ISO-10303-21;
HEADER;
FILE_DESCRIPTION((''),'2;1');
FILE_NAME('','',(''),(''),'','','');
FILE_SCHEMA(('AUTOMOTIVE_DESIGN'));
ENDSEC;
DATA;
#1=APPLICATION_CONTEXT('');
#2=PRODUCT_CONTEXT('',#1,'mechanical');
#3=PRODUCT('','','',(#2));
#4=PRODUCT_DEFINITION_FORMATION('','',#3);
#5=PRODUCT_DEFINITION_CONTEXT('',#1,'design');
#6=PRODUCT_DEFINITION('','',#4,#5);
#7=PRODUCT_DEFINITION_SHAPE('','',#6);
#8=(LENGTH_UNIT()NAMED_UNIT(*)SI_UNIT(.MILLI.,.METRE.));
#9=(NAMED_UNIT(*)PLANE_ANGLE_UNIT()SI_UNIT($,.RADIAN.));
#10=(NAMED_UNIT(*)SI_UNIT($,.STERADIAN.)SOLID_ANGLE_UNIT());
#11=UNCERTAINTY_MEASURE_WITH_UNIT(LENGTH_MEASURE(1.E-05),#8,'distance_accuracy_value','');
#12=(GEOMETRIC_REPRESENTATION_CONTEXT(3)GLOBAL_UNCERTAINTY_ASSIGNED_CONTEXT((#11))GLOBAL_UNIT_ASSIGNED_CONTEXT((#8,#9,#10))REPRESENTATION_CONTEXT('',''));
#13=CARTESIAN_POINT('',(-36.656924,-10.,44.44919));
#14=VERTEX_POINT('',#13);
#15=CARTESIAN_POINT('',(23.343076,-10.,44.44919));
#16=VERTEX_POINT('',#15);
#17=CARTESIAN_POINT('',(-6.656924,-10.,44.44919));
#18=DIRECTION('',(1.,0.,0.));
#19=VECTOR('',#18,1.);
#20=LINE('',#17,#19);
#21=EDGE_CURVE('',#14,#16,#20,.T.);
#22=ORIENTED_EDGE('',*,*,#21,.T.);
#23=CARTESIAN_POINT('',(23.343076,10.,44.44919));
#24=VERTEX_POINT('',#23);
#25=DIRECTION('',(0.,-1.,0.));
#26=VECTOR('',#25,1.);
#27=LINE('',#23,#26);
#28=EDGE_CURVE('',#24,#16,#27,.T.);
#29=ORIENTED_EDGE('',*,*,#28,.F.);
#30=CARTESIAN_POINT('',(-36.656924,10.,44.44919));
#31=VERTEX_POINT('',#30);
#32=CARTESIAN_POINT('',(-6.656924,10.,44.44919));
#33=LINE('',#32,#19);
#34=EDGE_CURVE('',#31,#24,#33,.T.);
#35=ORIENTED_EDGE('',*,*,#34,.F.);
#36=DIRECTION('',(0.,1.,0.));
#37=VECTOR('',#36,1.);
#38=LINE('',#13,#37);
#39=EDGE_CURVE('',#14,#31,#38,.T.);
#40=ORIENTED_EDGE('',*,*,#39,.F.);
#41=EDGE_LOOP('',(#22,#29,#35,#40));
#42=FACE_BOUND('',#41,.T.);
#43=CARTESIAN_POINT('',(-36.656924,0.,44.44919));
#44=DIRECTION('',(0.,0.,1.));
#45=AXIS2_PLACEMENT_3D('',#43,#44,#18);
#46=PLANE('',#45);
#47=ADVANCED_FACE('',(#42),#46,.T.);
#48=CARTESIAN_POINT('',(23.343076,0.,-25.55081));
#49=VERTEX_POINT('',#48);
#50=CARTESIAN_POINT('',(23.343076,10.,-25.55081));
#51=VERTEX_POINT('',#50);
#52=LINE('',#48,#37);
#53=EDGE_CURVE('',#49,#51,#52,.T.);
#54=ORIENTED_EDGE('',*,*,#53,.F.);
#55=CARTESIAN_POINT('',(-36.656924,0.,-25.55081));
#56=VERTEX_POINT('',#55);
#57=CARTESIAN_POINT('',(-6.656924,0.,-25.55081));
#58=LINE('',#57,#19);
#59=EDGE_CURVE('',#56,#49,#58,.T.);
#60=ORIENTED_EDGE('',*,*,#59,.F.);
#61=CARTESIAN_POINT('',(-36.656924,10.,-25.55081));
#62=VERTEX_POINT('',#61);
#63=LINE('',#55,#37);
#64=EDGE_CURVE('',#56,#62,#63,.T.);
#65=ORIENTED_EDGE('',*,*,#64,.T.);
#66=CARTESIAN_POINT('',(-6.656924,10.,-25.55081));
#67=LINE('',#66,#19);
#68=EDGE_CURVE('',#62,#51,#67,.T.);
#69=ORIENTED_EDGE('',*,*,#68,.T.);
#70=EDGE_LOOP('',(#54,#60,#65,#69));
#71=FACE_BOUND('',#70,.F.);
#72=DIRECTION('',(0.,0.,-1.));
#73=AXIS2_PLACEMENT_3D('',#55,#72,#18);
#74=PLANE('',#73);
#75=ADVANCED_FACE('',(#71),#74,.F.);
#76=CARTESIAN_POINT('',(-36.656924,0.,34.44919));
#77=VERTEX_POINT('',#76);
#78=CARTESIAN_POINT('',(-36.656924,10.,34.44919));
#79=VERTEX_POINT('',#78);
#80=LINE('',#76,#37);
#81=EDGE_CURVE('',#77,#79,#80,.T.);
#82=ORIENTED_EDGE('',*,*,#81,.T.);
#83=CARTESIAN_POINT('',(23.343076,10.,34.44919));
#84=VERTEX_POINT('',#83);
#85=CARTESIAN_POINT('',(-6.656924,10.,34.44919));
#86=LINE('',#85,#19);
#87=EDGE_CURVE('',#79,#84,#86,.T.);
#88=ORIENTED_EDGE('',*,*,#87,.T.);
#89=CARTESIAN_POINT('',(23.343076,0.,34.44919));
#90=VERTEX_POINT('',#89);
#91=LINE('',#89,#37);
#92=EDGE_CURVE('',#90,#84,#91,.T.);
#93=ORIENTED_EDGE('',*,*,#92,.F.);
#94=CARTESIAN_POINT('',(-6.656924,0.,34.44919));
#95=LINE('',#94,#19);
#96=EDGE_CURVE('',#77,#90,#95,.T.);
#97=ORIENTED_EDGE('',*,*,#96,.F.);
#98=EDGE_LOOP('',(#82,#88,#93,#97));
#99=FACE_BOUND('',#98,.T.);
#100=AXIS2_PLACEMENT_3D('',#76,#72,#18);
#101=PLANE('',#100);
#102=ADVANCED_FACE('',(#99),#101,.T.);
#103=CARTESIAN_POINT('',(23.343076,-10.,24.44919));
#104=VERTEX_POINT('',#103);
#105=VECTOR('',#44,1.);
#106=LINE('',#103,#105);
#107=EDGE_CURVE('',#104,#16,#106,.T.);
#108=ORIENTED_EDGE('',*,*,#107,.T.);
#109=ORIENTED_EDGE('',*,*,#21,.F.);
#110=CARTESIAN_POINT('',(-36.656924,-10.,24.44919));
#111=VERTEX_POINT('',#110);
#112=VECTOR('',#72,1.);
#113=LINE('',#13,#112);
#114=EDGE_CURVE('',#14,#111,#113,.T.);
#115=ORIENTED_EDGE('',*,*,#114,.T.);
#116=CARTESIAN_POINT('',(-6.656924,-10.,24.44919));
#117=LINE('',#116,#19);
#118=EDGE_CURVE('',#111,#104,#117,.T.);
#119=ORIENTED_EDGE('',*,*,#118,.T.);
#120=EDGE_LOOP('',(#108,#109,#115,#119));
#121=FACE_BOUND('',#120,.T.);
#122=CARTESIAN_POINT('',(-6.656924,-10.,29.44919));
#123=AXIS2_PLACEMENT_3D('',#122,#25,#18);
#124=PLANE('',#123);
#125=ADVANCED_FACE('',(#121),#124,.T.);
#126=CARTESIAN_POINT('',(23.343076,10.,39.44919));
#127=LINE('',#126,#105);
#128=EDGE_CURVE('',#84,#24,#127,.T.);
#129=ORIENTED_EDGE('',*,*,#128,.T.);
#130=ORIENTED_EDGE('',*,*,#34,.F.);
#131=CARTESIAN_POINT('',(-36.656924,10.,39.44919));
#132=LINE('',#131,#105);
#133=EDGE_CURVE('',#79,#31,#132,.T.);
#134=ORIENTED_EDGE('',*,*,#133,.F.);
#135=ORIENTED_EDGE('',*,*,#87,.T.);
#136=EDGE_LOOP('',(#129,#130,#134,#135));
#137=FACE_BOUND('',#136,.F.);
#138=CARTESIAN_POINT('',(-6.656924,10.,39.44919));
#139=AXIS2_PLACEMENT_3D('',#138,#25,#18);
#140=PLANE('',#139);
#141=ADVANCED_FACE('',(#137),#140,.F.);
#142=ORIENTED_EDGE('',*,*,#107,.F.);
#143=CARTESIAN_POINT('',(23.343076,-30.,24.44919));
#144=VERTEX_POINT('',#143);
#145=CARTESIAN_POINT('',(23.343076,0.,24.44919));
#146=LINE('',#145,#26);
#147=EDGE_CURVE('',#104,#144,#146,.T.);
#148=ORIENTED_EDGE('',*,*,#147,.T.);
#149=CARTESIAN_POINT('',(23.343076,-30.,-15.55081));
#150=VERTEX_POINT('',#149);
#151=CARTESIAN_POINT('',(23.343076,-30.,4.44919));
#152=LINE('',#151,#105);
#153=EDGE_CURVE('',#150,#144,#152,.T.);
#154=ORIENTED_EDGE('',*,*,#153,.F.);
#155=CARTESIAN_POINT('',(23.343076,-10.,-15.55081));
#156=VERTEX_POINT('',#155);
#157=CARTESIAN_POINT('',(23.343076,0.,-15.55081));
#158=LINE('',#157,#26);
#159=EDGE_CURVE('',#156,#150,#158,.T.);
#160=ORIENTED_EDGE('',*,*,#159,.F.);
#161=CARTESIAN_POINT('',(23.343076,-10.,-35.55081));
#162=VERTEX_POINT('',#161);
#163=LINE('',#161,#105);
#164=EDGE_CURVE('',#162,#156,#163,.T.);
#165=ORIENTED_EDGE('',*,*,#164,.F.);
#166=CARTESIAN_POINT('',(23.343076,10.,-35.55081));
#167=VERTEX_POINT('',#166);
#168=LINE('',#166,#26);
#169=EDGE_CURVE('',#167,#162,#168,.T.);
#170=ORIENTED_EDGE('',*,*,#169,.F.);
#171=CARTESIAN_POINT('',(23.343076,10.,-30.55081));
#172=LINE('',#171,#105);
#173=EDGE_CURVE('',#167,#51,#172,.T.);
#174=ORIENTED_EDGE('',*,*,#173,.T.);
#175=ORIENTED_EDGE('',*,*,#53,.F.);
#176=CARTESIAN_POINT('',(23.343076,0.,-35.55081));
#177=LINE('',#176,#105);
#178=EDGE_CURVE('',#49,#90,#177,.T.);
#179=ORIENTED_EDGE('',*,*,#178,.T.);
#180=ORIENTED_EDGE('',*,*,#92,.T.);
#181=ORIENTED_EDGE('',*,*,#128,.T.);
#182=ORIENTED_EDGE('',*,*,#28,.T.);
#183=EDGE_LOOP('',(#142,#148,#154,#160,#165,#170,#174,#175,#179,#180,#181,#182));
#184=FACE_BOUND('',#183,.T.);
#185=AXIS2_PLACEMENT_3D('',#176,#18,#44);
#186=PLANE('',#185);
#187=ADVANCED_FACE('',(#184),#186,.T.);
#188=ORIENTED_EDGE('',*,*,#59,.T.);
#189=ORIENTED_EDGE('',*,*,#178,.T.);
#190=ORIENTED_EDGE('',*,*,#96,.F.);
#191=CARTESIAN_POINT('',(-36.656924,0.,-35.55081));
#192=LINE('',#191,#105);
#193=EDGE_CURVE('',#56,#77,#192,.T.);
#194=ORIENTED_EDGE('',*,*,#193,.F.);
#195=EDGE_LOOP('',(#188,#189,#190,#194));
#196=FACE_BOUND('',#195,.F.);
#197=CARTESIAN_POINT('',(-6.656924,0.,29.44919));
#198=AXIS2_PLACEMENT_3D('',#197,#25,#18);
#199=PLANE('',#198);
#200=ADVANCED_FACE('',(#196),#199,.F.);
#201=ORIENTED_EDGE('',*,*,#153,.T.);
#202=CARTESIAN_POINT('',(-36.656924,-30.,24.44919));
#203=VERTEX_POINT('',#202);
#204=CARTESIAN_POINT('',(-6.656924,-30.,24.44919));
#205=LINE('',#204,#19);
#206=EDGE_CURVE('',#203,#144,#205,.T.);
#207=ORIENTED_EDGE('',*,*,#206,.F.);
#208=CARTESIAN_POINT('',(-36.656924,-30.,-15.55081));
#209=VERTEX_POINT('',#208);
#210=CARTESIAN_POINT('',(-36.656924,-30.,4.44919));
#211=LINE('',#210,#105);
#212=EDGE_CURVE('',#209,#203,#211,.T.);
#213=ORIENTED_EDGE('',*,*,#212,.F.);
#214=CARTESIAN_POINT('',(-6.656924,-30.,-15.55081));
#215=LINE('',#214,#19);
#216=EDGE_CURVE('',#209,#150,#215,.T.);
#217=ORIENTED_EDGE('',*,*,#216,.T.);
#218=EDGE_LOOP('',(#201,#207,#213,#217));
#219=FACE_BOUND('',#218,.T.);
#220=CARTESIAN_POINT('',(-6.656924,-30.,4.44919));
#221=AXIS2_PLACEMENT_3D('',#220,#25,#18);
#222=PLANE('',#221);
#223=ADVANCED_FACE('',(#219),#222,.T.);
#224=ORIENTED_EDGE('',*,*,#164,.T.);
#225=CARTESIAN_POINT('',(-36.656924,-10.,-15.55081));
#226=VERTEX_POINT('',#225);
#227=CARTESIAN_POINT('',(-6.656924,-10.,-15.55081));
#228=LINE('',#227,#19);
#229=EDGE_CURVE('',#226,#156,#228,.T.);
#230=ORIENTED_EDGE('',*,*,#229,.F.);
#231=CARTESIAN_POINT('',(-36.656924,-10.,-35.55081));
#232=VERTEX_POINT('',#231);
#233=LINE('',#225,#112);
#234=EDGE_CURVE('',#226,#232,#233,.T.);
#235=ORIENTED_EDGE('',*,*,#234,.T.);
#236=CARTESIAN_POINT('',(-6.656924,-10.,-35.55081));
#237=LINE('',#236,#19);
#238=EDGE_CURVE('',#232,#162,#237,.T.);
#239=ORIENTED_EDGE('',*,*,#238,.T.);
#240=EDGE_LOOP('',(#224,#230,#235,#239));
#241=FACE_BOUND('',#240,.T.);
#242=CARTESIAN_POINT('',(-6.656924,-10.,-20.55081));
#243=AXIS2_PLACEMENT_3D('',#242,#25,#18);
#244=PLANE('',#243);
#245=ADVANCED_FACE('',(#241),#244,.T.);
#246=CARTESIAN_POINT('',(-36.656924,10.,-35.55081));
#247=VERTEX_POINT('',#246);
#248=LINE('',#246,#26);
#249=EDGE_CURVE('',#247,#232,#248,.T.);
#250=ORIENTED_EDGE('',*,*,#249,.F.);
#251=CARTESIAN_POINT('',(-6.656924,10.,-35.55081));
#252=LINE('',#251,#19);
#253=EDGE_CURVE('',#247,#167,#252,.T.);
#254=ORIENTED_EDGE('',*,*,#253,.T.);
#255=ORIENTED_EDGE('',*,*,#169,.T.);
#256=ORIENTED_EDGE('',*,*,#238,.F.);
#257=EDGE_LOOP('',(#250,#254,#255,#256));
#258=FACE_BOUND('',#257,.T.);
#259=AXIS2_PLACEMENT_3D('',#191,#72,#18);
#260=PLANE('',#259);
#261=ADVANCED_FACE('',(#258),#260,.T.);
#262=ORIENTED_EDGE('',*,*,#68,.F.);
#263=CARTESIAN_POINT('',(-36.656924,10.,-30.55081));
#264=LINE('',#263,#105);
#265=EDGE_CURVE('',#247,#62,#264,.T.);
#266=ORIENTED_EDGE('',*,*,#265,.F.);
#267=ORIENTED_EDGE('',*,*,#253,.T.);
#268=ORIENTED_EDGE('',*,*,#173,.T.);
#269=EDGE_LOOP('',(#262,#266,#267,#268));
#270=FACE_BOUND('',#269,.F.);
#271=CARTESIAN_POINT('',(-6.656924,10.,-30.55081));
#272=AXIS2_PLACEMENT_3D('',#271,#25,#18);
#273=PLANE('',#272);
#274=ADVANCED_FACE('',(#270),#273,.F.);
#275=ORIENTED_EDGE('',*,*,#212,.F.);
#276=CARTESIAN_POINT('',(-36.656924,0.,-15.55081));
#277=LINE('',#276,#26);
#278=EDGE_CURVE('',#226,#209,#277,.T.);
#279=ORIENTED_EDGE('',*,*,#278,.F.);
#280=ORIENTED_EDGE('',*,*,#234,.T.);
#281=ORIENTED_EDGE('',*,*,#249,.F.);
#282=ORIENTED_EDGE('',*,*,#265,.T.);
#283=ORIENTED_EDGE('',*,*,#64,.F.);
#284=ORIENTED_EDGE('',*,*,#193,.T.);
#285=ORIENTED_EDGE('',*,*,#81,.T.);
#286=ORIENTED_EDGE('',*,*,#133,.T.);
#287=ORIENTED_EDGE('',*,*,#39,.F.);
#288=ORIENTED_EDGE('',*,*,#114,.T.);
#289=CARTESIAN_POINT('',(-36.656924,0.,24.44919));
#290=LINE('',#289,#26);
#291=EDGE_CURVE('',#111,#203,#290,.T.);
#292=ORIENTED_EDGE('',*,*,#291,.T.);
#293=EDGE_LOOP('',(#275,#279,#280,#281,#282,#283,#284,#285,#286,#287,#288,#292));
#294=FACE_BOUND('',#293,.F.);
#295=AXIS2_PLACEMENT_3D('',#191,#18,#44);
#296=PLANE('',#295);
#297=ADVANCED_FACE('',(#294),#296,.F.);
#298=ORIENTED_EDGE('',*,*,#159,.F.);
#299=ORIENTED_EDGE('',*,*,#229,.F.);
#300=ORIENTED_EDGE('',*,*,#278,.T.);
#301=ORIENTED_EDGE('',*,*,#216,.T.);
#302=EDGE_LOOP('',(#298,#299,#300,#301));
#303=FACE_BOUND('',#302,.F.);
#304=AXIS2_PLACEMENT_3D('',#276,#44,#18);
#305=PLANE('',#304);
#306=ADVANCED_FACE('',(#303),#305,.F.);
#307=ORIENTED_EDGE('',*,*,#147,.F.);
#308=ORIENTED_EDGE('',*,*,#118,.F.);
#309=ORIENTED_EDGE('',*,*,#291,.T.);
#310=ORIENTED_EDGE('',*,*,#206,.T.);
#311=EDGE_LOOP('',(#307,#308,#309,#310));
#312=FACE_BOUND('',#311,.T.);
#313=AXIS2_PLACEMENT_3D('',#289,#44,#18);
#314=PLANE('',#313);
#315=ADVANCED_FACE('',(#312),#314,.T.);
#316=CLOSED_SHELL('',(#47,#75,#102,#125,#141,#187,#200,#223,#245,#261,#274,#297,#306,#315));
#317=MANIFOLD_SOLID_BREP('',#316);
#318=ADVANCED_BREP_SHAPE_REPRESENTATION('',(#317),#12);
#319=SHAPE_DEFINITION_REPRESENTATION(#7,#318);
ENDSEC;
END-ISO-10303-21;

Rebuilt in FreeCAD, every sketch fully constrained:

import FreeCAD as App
import Part
import Sketcher

doc = App.newDocument("Part")
params = doc.addObject("Spreadsheet::Sheet", "Params")
for row, (alias, value) in enumerate([
    ("sketch1_width", "60 mm"),
    ("sketch1_height", "40 mm"),
    ("pad1_length", "30 mm"),
    ("sketch2_width", "60 mm"),
    ("sketch2_height", "20 mm"),
    ("pad2_length", "10 mm"),
    ("sketch3_width", "60 mm"),
    ("sketch3_height", "10 mm"),
    ("pad3_length", "10 mm"),
], start=1):
    params.set(f"A{row}", alias)
    params.set(f"B{row}", "=" + value)
    params.setAlias(f"B{row}", alias)

body = doc.addObject("PartDesign::Body", "Body")

# Sketch on XZ plane
sketch1 = doc.addObject("Sketcher::SketchObject", "Sketch")
body.addObject(sketch1)
sketch1.AttachmentSupport = (doc.XZ_Plane, [""])
sketch1.MapMode = "FlatFace"
sketch1.addGeometry([
    Part.LineSegment(App.Vector(-37, 24, 0), App.Vector(-37, -16, 0)),
    Part.LineSegment(App.Vector(-37, -16, 0), App.Vector(23, -16, 0)),
    Part.LineSegment(App.Vector(23, -16, 0), App.Vector(23, 24, 0)),
    Part.LineSegment(App.Vector(23, 24, 0), App.Vector(-37, 24, 0)),
], False)
sketch1.addConstraint([
    Sketcher.Constraint("Coincident", 0, 2, 1, 1),
    Sketcher.Constraint("Coincident", 1, 2, 2, 1),
    Sketcher.Constraint("Coincident", 2, 2, 3, 1),
    Sketcher.Constraint("Coincident", 3, 2, 0, 1),
    Sketcher.Constraint("Vertical", 0),
    Sketcher.Constraint("Horizontal", 1),
    Sketcher.Constraint("Vertical", 2),
    Sketcher.Constraint("Horizontal", 3),
    Sketcher.Constraint("DistanceX", 1, 1, 1, 2, 60.0),
    Sketcher.Constraint("DistanceY", 0, 2, 0, 1, 40.0),
    Sketcher.Constraint("DistanceY", 0, 2, -1, 1, 15.55081),
    Sketcher.Constraint("DistanceX", 0, 2, -1, 1, 36.656924),
])
sketch1.setExpression("Constraints[8]", "Params.sketch1_width")
sketch1.setExpression("Constraints[9]", "Params.sketch1_height")
pad1 = doc.addObject("PartDesign::Pad", "Pad")
body.addObject(pad1)
pad1.Profile = sketch1
pad1.setExpression("Length", "Params.pad1_length")

# Sketch on XZ plane
sketch2 = doc.addObject("Sketcher::SketchObject", "Sketch001")
body.addObject(sketch2)
sketch2.AttachmentSupport = (doc.XZ_Plane, [""])
sketch2.MapMode = "FlatFace"
sketch2.addGeometry([
    Part.LineSegment(App.Vector(-37, 24, 0), App.Vector(23, 24, 0)),  # 0
    Part.LineSegment(App.Vector(23, 24, 0), App.Vector(23, 44, 0)),  # 1
    Part.LineSegment(App.Vector(23, 44, 0), App.Vector(-37, 44, 0)),  # 2
    Part.LineSegment(App.Vector(-37, 44, 0), App.Vector(-37, 24, 0)),  # 3
    Part.LineSegment(App.Vector(-37, -16, 0), App.Vector(-37, -36, 0)),  # 4
    Part.LineSegment(App.Vector(-37, -36, 0), App.Vector(23, -36, 0)),  # 5
    Part.LineSegment(App.Vector(23, -36, 0), App.Vector(23, -16, 0)),  # 6
    Part.LineSegment(App.Vector(23, -16, 0), App.Vector(-37, -16, 0)),  # 7
], False)
sketch2.addConstraint([
    Sketcher.Constraint("Coincident", 0, 2, 1, 1),
    Sketcher.Constraint("Coincident", 1, 2, 2, 1),
    Sketcher.Constraint("Coincident", 2, 2, 3, 1),
    Sketcher.Constraint("Coincident", 3, 2, 0, 1),
    Sketcher.Constraint("Coincident", 4, 2, 5, 1),
    Sketcher.Constraint("Coincident", 5, 2, 6, 1),
    Sketcher.Constraint("Coincident", 6, 2, 7, 1),
    Sketcher.Constraint("Coincident", 7, 2, 4, 1),
    Sketcher.Constraint("Horizontal", 0),
    Sketcher.Constraint("Vertical", 1),
    Sketcher.Constraint("Horizontal", 2),
    Sketcher.Constraint("Vertical", 3),
    Sketcher.Constraint("Vertical", 4),
    Sketcher.Constraint("Horizontal", 5),
    Sketcher.Constraint("Vertical", 6),
    Sketcher.Constraint("Horizontal", 7),
    Sketcher.Constraint("Vertical", 3, 2, 4, 2),
    Sketcher.Constraint("Vertical", 1, 2, 5, 2),
    Sketcher.Constraint("Equal", 3, 4),
    Sketcher.Constraint("DistanceX", 0, 1, 0, 2, 60.0),
    Sketcher.Constraint("DistanceY", 1, 1, 1, 2, 20.0),
    Sketcher.Constraint("DistanceY", 4, 2, 3, 2, 60.0),
    Sketcher.Constraint("DistanceY", -1, 1, 0, 2, 24.44919),
    Sketcher.Constraint("DistanceX", -1, 1, 0, 2, 23.343076),
])
sketch2.setExpression("Constraints[19]", "Params.sketch2_width")
sketch2.setExpression("Constraints[20]", "Params.sketch2_height")
pad2 = doc.addObject("PartDesign::Pad", "Pad001")
body.addObject(pad2)
pad2.Profile = sketch2
pad2.setExpression("Length", "Params.pad2_length")

# Sketch on XZ plane
sketch3 = doc.addObject("Sketcher::SketchObject", "Sketch002")
body.addObject(sketch3)
sketch3.AttachmentSupport = (doc.XZ_Plane, [""])
sketch3.MapMode = "FlatFace"
sketch3.addGeometry([
    Part.LineSegment(App.Vector(-37, -26, 0), App.Vector(-37, -36, 0)),  # 0
    Part.LineSegment(App.Vector(-37, -36, 0), App.Vector(23, -36, 0)),  # 1
    Part.LineSegment(App.Vector(23, -36, 0), App.Vector(23, -26, 0)),  # 2
    Part.LineSegment(App.Vector(23, -26, 0), App.Vector(-37, -26, 0)),  # 3
    Part.LineSegment(App.Vector(-37, 44, 0), App.Vector(-37, 34, 0)),  # 4
    Part.LineSegment(App.Vector(-37, 34, 0), App.Vector(23, 34, 0)),  # 5
    Part.LineSegment(App.Vector(23, 34, 0), App.Vector(23, 44, 0)),  # 6
    Part.LineSegment(App.Vector(23, 44, 0), App.Vector(-37, 44, 0)),  # 7
], False)
sketch3.addConstraint([
    Sketcher.Constraint("Coincident", 0, 2, 1, 1),
    Sketcher.Constraint("Coincident", 1, 2, 2, 1),
    Sketcher.Constraint("Coincident", 2, 2, 3, 1),
    Sketcher.Constraint("Coincident", 3, 2, 0, 1),
    Sketcher.Constraint("Coincident", 4, 2, 5, 1),
    Sketcher.Constraint("Coincident", 5, 2, 6, 1),
    Sketcher.Constraint("Coincident", 6, 2, 7, 1),
    Sketcher.Constraint("Coincident", 7, 2, 4, 1),
    Sketcher.Constraint("Vertical", 0),
    Sketcher.Constraint("Horizontal", 1),
    Sketcher.Constraint("Vertical", 2),
    Sketcher.Constraint("Horizontal", 3),
    Sketcher.Constraint("Vertical", 4),
    Sketcher.Constraint("Horizontal", 5),
    Sketcher.Constraint("Vertical", 6),
    Sketcher.Constraint("Horizontal", 7),
    Sketcher.Constraint("Vertical", 3, 2, 4, 2),
    Sketcher.Constraint("Vertical", 2, 2, 5, 2),
    Sketcher.Constraint("Equal", 2, 4),
    Sketcher.Constraint("DistanceX", 1, 1, 1, 2, 60.0),
    Sketcher.Constraint("DistanceY", 0, 2, 0, 1, 10.0),
    Sketcher.Constraint("DistanceY", 3, 2, 4, 2, 60.0),
    Sketcher.Constraint("DistanceY", 0, 2, -1, 1, 35.55081),
    Sketcher.Constraint("DistanceX", 0, 2, -1, 1, 36.656924),
])
sketch3.setExpression("Constraints[19]", "Params.sketch3_width")
sketch3.setExpression("Constraints[20]", "Params.sketch3_height")
pad3 = doc.addObject("PartDesign::Pad", "Pad002")
body.addObject(pad3)
pad3.Profile = sketch3
pad3.setExpression("Length", "Params.pad3_length")
pad3.Reversed = True

doc.recompute()
